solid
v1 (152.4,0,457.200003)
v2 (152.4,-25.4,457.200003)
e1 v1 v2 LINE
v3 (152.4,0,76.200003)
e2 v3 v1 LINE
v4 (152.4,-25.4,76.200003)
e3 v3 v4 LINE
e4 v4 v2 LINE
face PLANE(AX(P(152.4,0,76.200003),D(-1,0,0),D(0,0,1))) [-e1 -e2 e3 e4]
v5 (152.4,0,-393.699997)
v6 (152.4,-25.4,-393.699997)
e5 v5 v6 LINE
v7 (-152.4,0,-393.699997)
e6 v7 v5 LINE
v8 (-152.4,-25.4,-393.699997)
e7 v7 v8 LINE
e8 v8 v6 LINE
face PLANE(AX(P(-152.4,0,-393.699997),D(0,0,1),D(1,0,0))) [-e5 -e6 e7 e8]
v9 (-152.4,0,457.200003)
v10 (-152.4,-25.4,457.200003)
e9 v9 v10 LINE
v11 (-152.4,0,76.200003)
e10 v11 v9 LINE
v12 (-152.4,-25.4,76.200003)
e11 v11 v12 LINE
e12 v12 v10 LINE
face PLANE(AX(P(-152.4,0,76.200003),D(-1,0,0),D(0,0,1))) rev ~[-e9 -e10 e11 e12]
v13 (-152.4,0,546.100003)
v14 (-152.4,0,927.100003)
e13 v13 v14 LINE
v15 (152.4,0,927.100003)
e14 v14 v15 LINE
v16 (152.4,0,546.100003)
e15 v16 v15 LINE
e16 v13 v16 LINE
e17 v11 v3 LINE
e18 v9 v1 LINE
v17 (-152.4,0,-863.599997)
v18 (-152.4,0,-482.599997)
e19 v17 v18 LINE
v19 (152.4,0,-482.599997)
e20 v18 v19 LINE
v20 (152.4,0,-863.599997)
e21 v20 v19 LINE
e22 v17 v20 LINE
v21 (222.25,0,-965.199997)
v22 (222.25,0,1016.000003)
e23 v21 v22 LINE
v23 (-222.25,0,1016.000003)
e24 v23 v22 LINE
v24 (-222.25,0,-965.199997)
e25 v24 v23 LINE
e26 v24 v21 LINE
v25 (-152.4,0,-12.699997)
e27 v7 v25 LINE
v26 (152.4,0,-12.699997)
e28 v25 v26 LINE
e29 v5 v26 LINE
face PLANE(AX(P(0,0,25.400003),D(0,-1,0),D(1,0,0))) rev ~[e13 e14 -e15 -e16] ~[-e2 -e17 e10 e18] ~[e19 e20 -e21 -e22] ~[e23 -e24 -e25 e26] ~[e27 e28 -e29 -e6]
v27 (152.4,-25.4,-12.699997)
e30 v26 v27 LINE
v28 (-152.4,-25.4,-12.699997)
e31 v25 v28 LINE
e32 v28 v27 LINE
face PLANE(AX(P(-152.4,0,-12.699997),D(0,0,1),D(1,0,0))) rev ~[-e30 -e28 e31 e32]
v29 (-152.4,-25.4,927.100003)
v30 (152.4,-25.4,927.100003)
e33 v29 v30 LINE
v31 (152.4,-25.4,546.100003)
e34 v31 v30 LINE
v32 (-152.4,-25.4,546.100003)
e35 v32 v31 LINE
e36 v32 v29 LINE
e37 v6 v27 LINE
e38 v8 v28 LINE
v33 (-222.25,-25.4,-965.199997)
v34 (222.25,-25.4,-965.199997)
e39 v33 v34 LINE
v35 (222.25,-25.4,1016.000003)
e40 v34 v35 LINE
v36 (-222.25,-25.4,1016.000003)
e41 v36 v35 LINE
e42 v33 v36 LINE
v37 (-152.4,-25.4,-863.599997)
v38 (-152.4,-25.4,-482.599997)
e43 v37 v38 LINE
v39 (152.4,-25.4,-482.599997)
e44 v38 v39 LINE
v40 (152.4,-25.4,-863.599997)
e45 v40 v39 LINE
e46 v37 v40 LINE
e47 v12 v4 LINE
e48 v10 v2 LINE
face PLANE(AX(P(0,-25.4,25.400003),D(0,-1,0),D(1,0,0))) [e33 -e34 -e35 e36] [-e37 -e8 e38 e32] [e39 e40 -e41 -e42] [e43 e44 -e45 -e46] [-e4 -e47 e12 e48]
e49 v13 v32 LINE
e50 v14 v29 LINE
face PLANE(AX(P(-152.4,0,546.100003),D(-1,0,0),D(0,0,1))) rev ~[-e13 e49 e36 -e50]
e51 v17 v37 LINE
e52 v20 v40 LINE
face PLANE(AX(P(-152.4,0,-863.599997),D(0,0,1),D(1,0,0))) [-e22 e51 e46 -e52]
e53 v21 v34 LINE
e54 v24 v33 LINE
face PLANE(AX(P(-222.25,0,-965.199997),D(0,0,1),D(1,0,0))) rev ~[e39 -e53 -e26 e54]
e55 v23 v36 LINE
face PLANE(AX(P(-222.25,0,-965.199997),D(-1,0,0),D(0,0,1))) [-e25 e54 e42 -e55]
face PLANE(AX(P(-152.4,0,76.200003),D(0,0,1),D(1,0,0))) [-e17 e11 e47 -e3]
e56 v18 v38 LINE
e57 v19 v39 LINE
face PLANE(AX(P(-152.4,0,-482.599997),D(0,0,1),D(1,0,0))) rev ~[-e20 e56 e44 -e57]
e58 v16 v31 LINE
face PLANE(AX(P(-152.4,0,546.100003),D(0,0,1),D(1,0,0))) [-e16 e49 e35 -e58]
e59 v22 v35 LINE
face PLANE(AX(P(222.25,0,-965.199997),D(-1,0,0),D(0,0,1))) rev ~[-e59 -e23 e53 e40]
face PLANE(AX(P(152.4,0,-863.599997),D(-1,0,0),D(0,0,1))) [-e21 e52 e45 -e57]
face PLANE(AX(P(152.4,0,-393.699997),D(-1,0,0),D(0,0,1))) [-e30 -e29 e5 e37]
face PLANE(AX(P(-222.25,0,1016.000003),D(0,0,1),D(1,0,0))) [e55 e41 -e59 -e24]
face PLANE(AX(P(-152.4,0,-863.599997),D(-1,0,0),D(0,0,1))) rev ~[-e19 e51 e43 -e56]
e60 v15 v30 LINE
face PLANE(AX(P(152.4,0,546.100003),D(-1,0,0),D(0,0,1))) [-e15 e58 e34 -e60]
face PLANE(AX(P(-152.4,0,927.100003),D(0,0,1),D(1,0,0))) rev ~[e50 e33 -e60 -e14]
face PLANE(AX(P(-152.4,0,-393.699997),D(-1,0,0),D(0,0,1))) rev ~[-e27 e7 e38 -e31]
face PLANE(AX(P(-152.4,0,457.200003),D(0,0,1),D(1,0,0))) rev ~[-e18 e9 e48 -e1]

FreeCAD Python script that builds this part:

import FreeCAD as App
import Part
import Sketcher
Q = App.Units.Quantity

doc = App.newDocument("Part")
body = doc.addObject("PartDesign::Body", "Body")

# Sketch on XZ plane
sketch1 = doc.addObject("Sketcher::SketchObject", "Sketch")
body.addObject(sketch1)
sketch1.AttachmentSupport = (doc.XZ_Plane, [""])
sketch1.MapMode = "FlatFace"
sketch1.addGeometry([
    Part.LineSegment(App.Vector(-222, 1016, 0), App.Vector(-222, -965, 0)),  # 0
    Part.LineSegment(App.Vector(-222, -965, 0), App.Vector(222, -965, 0)),  # 1
    Part.LineSegment(App.Vector(222, -965, 0), App.Vector(222, 1016, 0)),  # 2
    Part.LineSegment(App.Vector(222, 1016, 0), App.Vector(-222, 1016, 0)),  # 3
    Part.LineSegment(App.Vector(152, -864, 0), App.Vector(-152, -864, 0)),  # 4
    Part.LineSegment(App.Vector(-152, -864, 0), App.Vector(-152, -483, 0)),  # 5
    Part.LineSegment(App.Vector(-152, -483, 0), App.Vector(152, -483, 0)),  # 6
    Part.LineSegment(App.Vector(152, -483, 0), App.Vector(152, -864, 0)),  # 7
    Part.LineSegment(App.Vector(152, -394, 0), App.Vector(-152, -394, 0)),  # 8
    Part.LineSegment(App.Vector(-152, -394, 0), App.Vector(-152, -13, 0)),  # 9
    Part.LineSegment(App.Vector(-152, -13, 0), App.Vector(152, -13, 0)),  # 10
    Part.LineSegment(App.Vector(152, -13, 0), App.Vector(152, -394, 0)),  # 11
    Part.LineSegment(App.Vector(152, 76, 0), App.Vector(-152, 76, 0)),  # 12
    Part.LineSegment(App.Vector(-152, 76, 0), App.Vector(-152, 457, 0)),  # 13
    Part.LineSegment(App.Vector(-152, 457, 0), App.Vector(152, 457, 0)),  # 14
    Part.LineSegment(App.Vector(152, 457, 0), App.Vector(152, 76, 0)),  # 15
    Part.LineSegment(App.Vector(152, 546, 0), App.Vector(-152, 546, 0)),  # 16
    Part.LineSegment(App.Vector(-152, 546, 0), App.Vector(-152, 927, 0)),  # 17
    Part.LineSegment(App.Vector(-152, 927, 0), App.Vector(152, 927, 0)),  # 18
    Part.LineSegment(App.Vector(152, 927, 0), App.Vector(152, 546, 0)),  # 19
], False)
sketch1.addConstraint([
    Sketcher.Constraint("Coincident", 0, 2, 1, 1),
    Sketcher.Constraint("Coincident", 1, 2, 2, 1),
    Sketcher.Constraint("Coincident", 2, 2, 3, 1),
    Sketcher.Constraint("Coincident", 3, 2, 0, 1),
    Sketcher.Constraint("Coincident", 4, 2, 5, 1),
    Sketcher.Constraint("Coincident", 5, 2, 6, 1),
    Sketcher.Constraint("Coincident", 6, 2, 7, 1),
    Sketcher.Constraint("Coincident", 7, 2, 4, 1),
    Sketcher.Constraint("Coincident", 8, 2, 9, 1),
    Sketcher.Constraint("Coincident", 9, 2, 10, 1),
    Sketcher.Constraint("Coincident", 10, 2, 11, 1),
    Sketcher.Constraint("Coincident", 11, 2, 8, 1),
    Sketcher.Constraint("Coincident", 12, 2, 13, 1),
    Sketcher.Constraint("Coincident", 13, 2, 14, 1),
    Sketcher.Constraint("Coincident", 14, 2, 15, 1),
    Sketcher.Constraint("Coincident", 15, 2, 12, 1),
    Sketcher.Constraint("Coincident", 16, 2, 17, 1),
    Sketcher.Constraint("Coincident", 17, 2, 18, 1),
    Sketcher.Constraint("Coincident", 18, 2, 19, 1),
    Sketcher.Constraint("Coincident", 19, 2, 16, 1),
    Sketcher.Constraint("Vertical", 0),
    Sketcher.Constraint("Horizontal", 1),
    Sketcher.Constraint("Vertical", 2),
    Sketcher.Constraint("Horizontal", 3),
    Sketcher.Constraint("Horizontal", 4),
    Sketcher.Constraint("Vertical", 5),
    Sketcher.Constraint("Horizontal", 6),
    Sketcher.Constraint("Vertical", 7),
    Sketcher.Constraint("Horizontal", 8),
    Sketcher.Constraint("Vertical", 9),
    Sketcher.Constraint("Horizontal", 10),
    Sketcher.Constraint("Vertical", 11),
    Sketcher.Constraint("Horizontal", 12),
    Sketcher.Constraint("Vertical", 13),
    Sketcher.Constraint("Horizontal", 14),
    Sketcher.Constraint("Vertical", 15),
    Sketcher.Constraint("Horizontal", 16),
    Sketcher.Constraint("Vertical", 17),
    Sketcher.Constraint("Horizontal", 18),
    Sketcher.Constraint("Vertical", 19),
    Sketcher.Constraint("Vertical", 5, 2, 8, 2),
    Sketcher.Constraint("Vertical", 7, 2, 10, 2),
    Sketcher.Constraint("Vertical", 9, 2, 12, 2),
    Sketcher.Constraint("Vertical", 11, 2, 14, 2),
    Sketcher.Constraint("Vertical", 13, 2, 16, 2),
    Sketcher.Constraint("Vertical", 15, 2, 18, 2),
    Sketcher.Constraint("Equal", 7, 9),
    Sketcher.Constraint("Equal", 11, 13),
    Sketcher.Constraint("Equal", 15, 17),
    Sketcher.Constraint("DistanceX", 4, 2, 4, 1, Q("12 in")),
    Sketcher.Constraint("DistanceY", 0, 2, 0, 1, Q("78 in")),
    Sketcher.Constraint("DistanceY", 5, 1, 5, 2, Q("15 in")),
    Sketcher.Constraint("DistanceX", 1, 1, 1, 2, Q("17.5 in")),
    Sketcher.Constraint("DistanceY", 0, 2, -1, 1, Q("37.9999999 in")),
    Sketcher.Constraint("DistanceX", 4, 2, -1, 1, Q("6 in")),
    Sketcher.Constraint("DistanceY", 4, 2, -1, 1, Q("33.9999999 in")),
    Sketcher.Constraint("DistanceY", -1, 1, 12, 2, Q("3.0000001 in")),
    Sketcher.Constraint("DistanceY", 9, 2, 16, 2, Q("22 in")),
    Sketcher.Constraint("DistanceY", 8, 2, -1, 1, Q("15.4999999 in")),
    Sketcher.Constraint("DistanceX", 0, 2, -1, 1, Q("8.75 in")),
])
pad1 = doc.addObject("PartDesign::Pad", "Pad")
body.addObject(pad1)
pad1.Profile = sketch1
pad1.Length = Q("1 in")

doc.recompute()
